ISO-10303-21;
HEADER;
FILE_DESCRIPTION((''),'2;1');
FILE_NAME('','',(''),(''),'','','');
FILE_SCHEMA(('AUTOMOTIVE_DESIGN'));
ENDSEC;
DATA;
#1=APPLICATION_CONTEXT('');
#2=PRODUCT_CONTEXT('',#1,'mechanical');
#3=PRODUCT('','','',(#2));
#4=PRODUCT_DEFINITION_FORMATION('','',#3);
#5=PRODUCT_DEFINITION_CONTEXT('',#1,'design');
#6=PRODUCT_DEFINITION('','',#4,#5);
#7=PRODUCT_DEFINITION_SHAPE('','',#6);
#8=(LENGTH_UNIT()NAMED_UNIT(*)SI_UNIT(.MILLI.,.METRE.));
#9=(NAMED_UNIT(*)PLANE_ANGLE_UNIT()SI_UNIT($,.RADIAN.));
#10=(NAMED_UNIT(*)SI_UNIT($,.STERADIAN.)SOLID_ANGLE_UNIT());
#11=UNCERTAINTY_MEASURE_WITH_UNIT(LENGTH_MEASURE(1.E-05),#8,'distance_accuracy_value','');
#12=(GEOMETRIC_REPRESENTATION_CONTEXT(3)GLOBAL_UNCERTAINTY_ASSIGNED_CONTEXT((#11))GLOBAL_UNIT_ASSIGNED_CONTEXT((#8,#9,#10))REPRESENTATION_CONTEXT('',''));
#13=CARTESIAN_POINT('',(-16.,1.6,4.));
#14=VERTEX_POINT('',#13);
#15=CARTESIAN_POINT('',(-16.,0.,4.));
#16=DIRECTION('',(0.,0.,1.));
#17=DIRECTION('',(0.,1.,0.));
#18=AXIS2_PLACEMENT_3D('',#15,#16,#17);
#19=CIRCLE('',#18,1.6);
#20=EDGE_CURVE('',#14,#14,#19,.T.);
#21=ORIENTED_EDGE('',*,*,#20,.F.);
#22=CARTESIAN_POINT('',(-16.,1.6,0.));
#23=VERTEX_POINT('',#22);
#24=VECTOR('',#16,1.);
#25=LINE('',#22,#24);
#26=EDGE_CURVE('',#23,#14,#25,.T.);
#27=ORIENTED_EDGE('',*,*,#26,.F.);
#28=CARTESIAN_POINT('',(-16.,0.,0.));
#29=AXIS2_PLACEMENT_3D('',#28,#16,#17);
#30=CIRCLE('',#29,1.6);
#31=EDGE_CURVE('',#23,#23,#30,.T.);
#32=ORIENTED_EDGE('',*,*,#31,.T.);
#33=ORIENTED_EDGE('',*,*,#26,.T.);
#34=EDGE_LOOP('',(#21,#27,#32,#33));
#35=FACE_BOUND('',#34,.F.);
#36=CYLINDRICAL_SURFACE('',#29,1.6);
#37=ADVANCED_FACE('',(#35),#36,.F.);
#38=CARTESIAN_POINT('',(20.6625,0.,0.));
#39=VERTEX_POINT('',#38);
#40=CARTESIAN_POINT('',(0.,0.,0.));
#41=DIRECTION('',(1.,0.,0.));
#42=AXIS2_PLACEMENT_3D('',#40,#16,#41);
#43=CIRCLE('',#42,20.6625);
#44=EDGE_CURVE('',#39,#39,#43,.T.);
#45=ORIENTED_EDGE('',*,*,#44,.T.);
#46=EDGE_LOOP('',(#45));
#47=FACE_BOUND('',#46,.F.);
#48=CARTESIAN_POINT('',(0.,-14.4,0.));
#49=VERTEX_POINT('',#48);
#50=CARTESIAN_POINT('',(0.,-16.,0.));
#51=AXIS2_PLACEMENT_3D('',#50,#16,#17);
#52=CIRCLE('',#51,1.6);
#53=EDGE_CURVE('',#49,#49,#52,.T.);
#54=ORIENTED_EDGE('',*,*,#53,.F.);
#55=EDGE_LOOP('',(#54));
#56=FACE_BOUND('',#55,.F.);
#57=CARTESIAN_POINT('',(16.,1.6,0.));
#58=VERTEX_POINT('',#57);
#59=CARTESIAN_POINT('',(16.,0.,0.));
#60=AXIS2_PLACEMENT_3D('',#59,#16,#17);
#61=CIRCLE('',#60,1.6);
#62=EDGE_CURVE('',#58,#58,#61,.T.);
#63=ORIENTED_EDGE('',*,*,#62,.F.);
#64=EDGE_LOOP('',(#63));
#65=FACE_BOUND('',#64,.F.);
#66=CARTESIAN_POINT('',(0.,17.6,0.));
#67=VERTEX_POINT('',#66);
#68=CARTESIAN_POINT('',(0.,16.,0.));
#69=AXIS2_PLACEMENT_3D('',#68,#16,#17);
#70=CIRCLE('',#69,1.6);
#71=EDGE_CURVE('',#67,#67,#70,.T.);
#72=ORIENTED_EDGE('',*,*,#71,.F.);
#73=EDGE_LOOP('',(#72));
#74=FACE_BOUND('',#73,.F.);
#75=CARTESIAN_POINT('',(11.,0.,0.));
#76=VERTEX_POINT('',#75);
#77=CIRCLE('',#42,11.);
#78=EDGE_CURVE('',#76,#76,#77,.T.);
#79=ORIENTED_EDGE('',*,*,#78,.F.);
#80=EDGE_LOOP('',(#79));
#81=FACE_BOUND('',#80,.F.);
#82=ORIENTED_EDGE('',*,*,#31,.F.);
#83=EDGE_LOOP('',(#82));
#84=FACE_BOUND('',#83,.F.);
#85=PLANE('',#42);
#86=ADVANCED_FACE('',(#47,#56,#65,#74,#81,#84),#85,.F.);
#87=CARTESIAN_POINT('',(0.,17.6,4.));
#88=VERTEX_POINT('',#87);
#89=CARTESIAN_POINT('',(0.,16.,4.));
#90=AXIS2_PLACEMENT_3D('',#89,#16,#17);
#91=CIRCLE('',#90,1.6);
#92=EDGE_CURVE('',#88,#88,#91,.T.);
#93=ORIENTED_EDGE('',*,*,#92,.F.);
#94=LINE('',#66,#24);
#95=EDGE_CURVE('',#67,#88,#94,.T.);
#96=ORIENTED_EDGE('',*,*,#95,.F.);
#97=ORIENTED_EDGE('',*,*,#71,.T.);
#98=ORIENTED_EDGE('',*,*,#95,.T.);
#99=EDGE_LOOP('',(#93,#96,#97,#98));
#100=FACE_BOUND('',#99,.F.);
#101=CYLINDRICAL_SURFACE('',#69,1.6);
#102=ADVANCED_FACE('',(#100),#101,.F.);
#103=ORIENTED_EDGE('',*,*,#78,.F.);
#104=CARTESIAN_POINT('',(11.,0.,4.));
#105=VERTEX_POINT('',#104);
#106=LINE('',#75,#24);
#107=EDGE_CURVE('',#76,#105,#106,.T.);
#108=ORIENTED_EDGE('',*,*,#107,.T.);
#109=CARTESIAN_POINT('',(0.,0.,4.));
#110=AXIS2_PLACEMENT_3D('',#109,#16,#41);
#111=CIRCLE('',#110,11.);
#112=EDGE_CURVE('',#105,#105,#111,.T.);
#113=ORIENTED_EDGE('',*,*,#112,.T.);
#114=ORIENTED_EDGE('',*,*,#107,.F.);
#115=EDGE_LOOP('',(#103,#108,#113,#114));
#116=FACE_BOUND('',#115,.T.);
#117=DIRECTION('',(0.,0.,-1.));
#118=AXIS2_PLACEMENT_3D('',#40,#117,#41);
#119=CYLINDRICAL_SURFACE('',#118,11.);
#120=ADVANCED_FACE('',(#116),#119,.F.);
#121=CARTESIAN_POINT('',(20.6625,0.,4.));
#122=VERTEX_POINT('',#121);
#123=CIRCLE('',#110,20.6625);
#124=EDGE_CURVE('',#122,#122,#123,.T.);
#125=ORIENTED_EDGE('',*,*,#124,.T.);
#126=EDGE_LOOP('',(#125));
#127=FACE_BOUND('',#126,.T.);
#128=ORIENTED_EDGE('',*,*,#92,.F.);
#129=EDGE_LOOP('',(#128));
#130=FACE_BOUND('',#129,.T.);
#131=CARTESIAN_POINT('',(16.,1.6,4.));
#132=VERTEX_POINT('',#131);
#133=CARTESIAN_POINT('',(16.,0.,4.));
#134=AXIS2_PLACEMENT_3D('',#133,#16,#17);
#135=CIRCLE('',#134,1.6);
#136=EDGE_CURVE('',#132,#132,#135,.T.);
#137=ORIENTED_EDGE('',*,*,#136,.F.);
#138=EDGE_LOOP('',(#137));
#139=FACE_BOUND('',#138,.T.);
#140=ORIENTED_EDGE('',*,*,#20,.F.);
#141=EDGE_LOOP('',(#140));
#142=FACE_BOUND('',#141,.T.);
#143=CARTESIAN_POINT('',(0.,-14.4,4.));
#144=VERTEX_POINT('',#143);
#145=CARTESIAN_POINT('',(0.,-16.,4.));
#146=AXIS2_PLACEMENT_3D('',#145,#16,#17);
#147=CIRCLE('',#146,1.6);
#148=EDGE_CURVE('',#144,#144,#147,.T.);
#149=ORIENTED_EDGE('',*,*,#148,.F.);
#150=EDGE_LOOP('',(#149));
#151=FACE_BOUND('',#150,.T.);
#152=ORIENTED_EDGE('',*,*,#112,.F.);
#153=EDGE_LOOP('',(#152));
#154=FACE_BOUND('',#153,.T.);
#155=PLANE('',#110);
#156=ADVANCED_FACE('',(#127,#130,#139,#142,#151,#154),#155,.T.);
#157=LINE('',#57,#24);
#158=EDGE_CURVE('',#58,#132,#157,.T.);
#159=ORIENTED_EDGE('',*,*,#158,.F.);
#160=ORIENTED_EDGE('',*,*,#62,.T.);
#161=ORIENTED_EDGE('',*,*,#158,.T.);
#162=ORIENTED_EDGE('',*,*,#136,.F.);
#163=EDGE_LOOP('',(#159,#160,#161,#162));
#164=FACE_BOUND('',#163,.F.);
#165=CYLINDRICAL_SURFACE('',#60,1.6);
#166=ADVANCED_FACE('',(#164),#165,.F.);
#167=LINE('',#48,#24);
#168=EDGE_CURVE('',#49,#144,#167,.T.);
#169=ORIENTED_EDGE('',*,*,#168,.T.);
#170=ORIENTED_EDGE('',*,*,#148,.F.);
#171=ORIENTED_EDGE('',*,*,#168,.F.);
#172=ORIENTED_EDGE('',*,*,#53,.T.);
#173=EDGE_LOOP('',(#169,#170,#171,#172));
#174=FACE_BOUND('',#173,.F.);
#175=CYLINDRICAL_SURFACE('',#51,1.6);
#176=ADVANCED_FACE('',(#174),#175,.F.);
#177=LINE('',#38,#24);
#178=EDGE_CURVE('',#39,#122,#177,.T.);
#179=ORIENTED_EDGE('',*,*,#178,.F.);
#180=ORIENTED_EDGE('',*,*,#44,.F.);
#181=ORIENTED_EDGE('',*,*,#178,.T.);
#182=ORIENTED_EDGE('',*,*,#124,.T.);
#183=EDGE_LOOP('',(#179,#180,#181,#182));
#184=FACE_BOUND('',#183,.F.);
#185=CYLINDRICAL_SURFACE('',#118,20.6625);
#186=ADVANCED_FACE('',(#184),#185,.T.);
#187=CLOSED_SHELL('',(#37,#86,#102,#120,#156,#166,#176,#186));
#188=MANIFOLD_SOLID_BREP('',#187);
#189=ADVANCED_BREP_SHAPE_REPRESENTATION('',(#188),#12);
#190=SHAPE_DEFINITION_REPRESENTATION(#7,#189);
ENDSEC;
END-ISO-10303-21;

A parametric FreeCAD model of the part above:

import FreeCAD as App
import Part
import Sketcher
Q = App.Units.Quantity

doc = App.newDocument("Part")
body = doc.addObject("PartDesign::Body", "Body")

# Sketch on XY plane
sketch1 = body.newObject("Sketcher::SketchObject", "Sketch")
sketch1.AttachmentSupport = (doc.getObject("XY_Plane"), [""])
sketch1.MapMode = "FlatFace"
sketch1.addGeometry(Part.Circle(App.Vector(0, 0, 0), App.Vector(0, 0, 1), 21), False)
sketch1.addGeometry(Part.Circle(App.Vector(0, 0, 0), App.Vector(0, 0, 1), 11), False)
sketch1.addConstraint(Sketcher.Constraint("Coincident", 0, 3, -1, 1))
sketch1.addConstraint(Sketcher.Constraint("Coincident", 1, 3, -1, 1))
sketch1.addConstraint(Sketcher.Constraint("Diameter", 1, Q("22 mm")))
sketch1.addConstraint(Sketcher.Constraint("Diameter", 0, Q("41.325 mm")))
pad1 = body.newObject("PartDesign::Pad", "Pad")
pad1.Profile = sketch1
pad1.Length = 4

# Sketch on XY plane
sketch2 = body.newObject("Sketcher::SketchObject", "Sketch001")
sketch2.AttachmentSupport = (doc.getObject("XY_Plane"), [""])
sketch2.MapMode = "FlatFace"
sketch2.addGeometry(Part.Circle(App.Vector(16, 0, 0), App.Vector(0, 0, 1), 1.6), False)
sketch2.addGeometry(Part.Circle(App.Vector(0, 16, 0), App.Vector(0, 0, 1), 1.6), False)
sketch2.addGeometry(Part.Circle(App.Vector(-16, 0, 0), App.Vector(0, 0, 1), 1.6), False)
sketch2.addGeometry(Part.Circle(App.Vector(0, -16, 0), App.Vector(0, 0, 1), 1.6), False)
sketch2.addConstraint(Sketcher.Constraint("Equal", 0, 1))
sketch2.addConstraint(Sketcher.Constraint("Equal", 1, 2))
sketch2.addConstraint(Sketcher.Constraint("Equal", 2, 3))
sketch2.addConstraint(Sketcher.Constraint("Symmetric", 0, 3, 2, 3, -1, 1))
sketch2.addConstraint(Sketcher.Constraint("Symmetric", 1, 3, 3, 3, -1, 1))
sketch2.addConstraint(Sketcher.Constraint("PointOnObject", 0, 3, -1))
sketch2.addConstraint(Sketcher.Constraint("PointOnObject", 1, 3, -2))
sketch2.addConstraint(Sketcher.Constraint("Diameter", 0, Q("3.2 mm")))
sketch2.addConstraint(Sketcher.Constraint("DistanceX", -1, 1, 0, 3, Q("16 mm")))
sketch2.addConstraint(Sketcher.Constraint("DistanceY", -1, 1, 1, 3, Q("16 mm")))
doc.recompute()
hole = body.newObject("PartDesign::Hole", "Hole")
hole.Profile = sketch2
hole.ThreadType = "None"
hole.Diameter = 3.2
hole.DepthType = "ThroughAll"
hole.Reversed = True

doc.recompute()
